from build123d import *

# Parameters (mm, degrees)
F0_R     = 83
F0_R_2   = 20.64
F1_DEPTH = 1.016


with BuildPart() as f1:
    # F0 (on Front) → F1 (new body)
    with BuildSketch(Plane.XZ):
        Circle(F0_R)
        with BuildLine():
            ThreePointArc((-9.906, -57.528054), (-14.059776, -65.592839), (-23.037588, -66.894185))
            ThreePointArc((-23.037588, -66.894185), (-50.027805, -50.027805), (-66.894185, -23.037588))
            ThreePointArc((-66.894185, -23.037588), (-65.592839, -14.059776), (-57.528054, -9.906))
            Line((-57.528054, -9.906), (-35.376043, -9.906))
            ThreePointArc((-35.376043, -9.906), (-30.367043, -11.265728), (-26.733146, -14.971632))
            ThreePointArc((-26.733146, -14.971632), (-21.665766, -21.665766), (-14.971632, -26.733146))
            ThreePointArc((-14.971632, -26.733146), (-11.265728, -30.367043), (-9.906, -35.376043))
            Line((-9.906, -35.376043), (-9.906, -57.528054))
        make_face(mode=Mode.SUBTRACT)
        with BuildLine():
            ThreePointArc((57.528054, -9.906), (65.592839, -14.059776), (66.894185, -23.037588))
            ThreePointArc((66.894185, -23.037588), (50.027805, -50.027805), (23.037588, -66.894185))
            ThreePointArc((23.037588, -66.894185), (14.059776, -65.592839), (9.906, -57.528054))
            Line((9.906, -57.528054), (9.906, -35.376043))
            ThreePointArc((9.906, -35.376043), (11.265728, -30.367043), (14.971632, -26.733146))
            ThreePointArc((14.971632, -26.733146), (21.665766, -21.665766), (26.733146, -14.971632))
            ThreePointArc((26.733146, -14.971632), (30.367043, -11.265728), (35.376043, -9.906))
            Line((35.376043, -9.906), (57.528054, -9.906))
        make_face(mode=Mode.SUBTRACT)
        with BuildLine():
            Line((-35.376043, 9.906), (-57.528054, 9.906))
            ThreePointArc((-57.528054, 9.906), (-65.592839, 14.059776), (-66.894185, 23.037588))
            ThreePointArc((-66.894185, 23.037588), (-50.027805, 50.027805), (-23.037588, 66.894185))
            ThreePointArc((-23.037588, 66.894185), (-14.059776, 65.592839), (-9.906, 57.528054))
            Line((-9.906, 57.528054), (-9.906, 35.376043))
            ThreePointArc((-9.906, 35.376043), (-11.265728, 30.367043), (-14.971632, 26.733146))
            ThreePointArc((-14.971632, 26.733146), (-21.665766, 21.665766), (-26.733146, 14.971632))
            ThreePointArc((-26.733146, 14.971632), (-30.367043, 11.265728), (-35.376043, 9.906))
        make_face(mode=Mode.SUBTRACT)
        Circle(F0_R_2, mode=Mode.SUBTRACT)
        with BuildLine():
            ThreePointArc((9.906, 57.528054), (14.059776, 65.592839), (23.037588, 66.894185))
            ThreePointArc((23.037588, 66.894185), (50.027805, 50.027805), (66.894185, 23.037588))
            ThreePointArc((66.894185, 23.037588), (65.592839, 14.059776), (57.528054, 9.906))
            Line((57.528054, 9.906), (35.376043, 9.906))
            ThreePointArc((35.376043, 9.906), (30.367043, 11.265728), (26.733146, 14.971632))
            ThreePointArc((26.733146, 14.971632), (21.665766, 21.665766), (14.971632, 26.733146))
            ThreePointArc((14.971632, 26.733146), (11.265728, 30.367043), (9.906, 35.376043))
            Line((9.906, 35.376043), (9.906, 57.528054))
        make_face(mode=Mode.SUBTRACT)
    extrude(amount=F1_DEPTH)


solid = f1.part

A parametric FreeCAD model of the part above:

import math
import FreeCAD as App
import Part
import Sketcher
Q = App.Units.Quantity

doc = App.newDocument("Part")
body = doc.addObject("PartDesign::Body", "Body")

# Sketch on XZ plane
sketch1 = doc.addObject("Sketcher::SketchObject", "Sketch")
body.addObject(sketch1)
sketch1.AttachmentSupport = (doc.XZ_Plane, [""])
sketch1.MapMode = "FlatFace"
sketch1.addGeometry([
    Part.Circle(App.Vector(0, 0, 0), App.Vector(0, 0, 1), 83),  # 0
    Part.LineSegment(App.Vector(-9.906, -35.376043, 0), App.Vector(-9.906, -57.528054, 0)),  # 1
    Part.ArcOfCircle(Part.Circle(App.Vector(-19.811999, -57.528054, 0), App.Vector(0, 0, 1), 9.905999), math.radians(-109.003124), math.radians(0.000003)),  # 2
    Part.ArcOfCircle(Part.Circle(App.Vector(-0.000005, -0.000005, 0), App.Vector(0, 0, 1), 70.749993), math.radians(-160.996884), math.radians(-109.003116)),  # 3
    Part.ArcOfCircle(Part.Circle(App.Vector(-57.528054, -19.811999, 0), App.Vector(0, 0, 1), 9.905999), math.radians(89.999997), math.radians(199.003124)),  # 4
    Part.LineSegment(App.Vector(-57.528054, -9.906, 0), App.Vector(-35.376043, -9.906, 0)),  # 5
    Part.ArcOfCircle(Part.Circle(App.Vector(-35.376041, -19.811996, 0), App.Vector(0, 0, 1), 9.905996), math.radians(29.250556), math.radians(90.000012)),  # 6
    Part.ArcOfCircle(Part.Circle(App.Vector(0.000008, 0.000008, 0), App.Vector(0, 0, 1), 30.640032), math.radians(-150.749422), math.radians(-119.250578)),  # 7
    Part.ArcOfCircle(Part.Circle(App.Vector(-19.811996, -35.376041, 0), App.Vector(0, 0, 1), 9.905996), math.radians(-0.000012), math.radians(60.749444)),  # 8
    Part.LineSegment(App.Vector(35.376043, -9.906, 0), App.Vector(57.528054, -9.906, 0)),  # 9
    Part.ArcOfCircle(Part.Circle(App.Vector(57.528054, -19.811999, 0), App.Vector(0, 0, 1), 9.905999), math.radians(-19.003124), math.radians(90.000003)),  # 10
    Part.ArcOfCircle(Part.Circle(App.Vector(0.000005, -0.000005, 0), App.Vector(0, 0, 1), 70.749993), math.radians(-70.996884), math.radians(-19.003116)),  # 11
    Part.ArcOfCircle(Part.Circle(App.Vector(19.811999, -57.528054, 0), App.Vector(0, 0, 1), 9.905999), math.radians(179.999997), math.radians(289.003124)),  # 12
    Part.LineSegment(App.Vector(9.906, -57.528054, 0), App.Vector(9.906, -35.376043, 0)),  # 13
    Part.ArcOfCircle(Part.Circle(App.Vector(19.811996, -35.376041, 0), App.Vector(0, 0, 1), 9.905996), math.radians(119.250556), math.radians(180.000012)),  # 14
    Part.ArcOfCircle(Part.Circle(App.Vector(-0.000008, 0.000008, 0), App.Vector(0, 0, 1), 30.640032), math.radians(-60.749422), math.radians(-29.250578)),  # 15
    Part.ArcOfCircle(Part.Circle(App.Vector(35.376041, -19.811996, 0), App.Vector(0, 0, 1), 9.905996), math.radians(89.999988), math.radians(150.749444)),  # 16
    Part.Circle(App.Vector(0, 0, 0), App.Vector(0, 0, 1), 20.64),  # 17
    Part.ArcOfCircle(Part.Circle(App.Vector(-35.376041, 19.811996, 0), App.Vector(0, 0, 1), 9.905996), math.radians(-90.000012), math.radians(-29.250556)),  # 18
    Part.LineSegment(App.Vector(-35.376043, 9.906, 0), App.Vector(-57.528054, 9.906, 0)),  # 19
    Part.ArcOfCircle(Part.Circle(App.Vector(-57.528054, 19.811999, 0), App.Vector(0, 0, 1), 9.905999), math.radians(160.996876), math.radians(270.000003)),  # 20
    Part.ArcOfCircle(Part.Circle(App.Vector(-0.000005, 0.000005, 0), App.Vector(0, 0, 1), 70.749993), math.radians(109.003116), math.radians(160.996884)),  # 21
    Part.ArcOfCircle(Part.Circle(App.Vector(-19.811999, 57.528054, 0), App.Vector(0, 0, 1), 9.905999), math.radians(-0.000003), math.radians(109.003124)),  # 22
    Part.LineSegment(App.Vector(-9.906, 57.528054, 0), App.Vector(-9.906, 35.376043, 0)),  # 23
    Part.ArcOfCircle(Part.Circle(App.Vector(-19.811996, 35.376041, 0), App.Vector(0, 0, 1), 9.905996), math.radians(-60.749444), math.radians(0.000012)),  # 24
    Part.ArcOfCircle(Part.Circle(App.Vector(0.000008, -0.000008, 0), App.Vector(0, 0, 1), 30.640032), math.radians(119.250578), math.radians(150.749422)),  # 25
    Part.LineSegment(App.Vector(9.906, 35.376043, 0), App.Vector(9.906, 57.528054, 0)),  # 26
    Part.ArcOfCircle(Part.Circle(App.Vector(19.811999, 57.528054, 0), App.Vector(0, 0, 1), 9.905999), math.radians(70.996876), math.radians(180.000003)),  # 27
    Part.ArcOfCircle(Part.Circle(App.Vector(0.000005, 0.000005, 0), App.Vector(0, 0, 1), 70.749993), math.radians(19.003116), math.radians(70.996884)),  # 28
    Part.ArcOfCircle(Part.Circle(App.Vector(57.528054, 19.811999, 0), App.Vector(0, 0, 1), 9.905999), math.radians(-90.000003), math.radians(19.003124)),  # 29
    Part.LineSegment(App.Vector(57.528054, 9.906, 0), App.Vector(35.376043, 9.906, 0)),  # 30
    Part.ArcOfCircle(Part.Circle(App.Vector(35.376041, 19.811996, 0), App.Vector(0, 0, 1), 9.905996), math.radians(-150.749444), math.radians(-89.999988)),  # 31
    Part.ArcOfCircle(Part.Circle(App.Vector(-0.000008, -0.000008, 0), App.Vector(0, 0, 1), 30.640032), math.radians(29.250578), math.radians(60.749422)),  # 32
    Part.ArcOfCircle(Part.Circle(App.Vector(19.811996, 35.376041, 0), App.Vector(0, 0, 1), 9.905996), math.radians(179.999988), math.radians(240.749444)),  # 33
], False)
sketch1.addConstraint([
    Sketcher.Constraint("Tangent", 1, 2, 2, 2),
    Sketcher.Constraint("Tangent", 2, 1, 3, 2),
    Sketcher.Constraint("Tangent", 3, 1, 4, 2),
    Sketcher.Constraint("Tangent", 4, 1, 5, 1),
    Sketcher.Constraint("Tangent", 5, 2, 6, 2),
    Sketcher.Constraint("Tangent", 6, 1, 7, 1),
    Sketcher.Constraint("Tangent", 7, 2, 8, 2),
    Sketcher.Constraint("Tangent", 8, 1, 1, 1),
    Sketcher.Constraint("Tangent", 9, 2, 10, 2),
    Sketcher.Constraint("Tangent", 10, 1, 11, 2),
    Sketcher.Constraint("Tangent", 11, 1, 12, 2),
    Sketcher.Constraint("Tangent", 12, 1, 13, 1),
    Sketcher.Constraint("Tangent", 13, 2, 14, 2),
    Sketcher.Constraint("Tangent", 14, 1, 15, 1),
    Sketcher.Constraint("Tangent", 15, 2, 16, 2),
    Sketcher.Constraint("Tangent", 16, 1, 9, 1),
    Sketcher.Constraint("Tangent", 18, 1, 19, 1),
    Sketcher.Constraint("Tangent", 19, 2, 20, 2),
    Sketcher.Constraint("Tangent", 20, 1, 21, 2),
    Sketcher.Constraint("Tangent", 21, 1, 22, 2),
    Sketcher.Constraint("Tangent", 22, 1, 23, 1),
    Sketcher.Constraint("Tangent", 23, 2, 24, 2),
    Sketcher.Constraint("Tangent", 24, 1, 25, 1),
    Sketcher.Constraint("Tangent", 25, 2, 18, 2),
    Sketcher.Constraint("Tangent", 26, 2, 27, 2),
    Sketcher.Constraint("Tangent", 27, 1, 28, 2),
    Sketcher.Constraint("Tangent", 28, 1, 29, 2),
    Sketcher.Constraint("Tangent", 29, 1, 30, 1),
    Sketcher.Constraint("Tangent", 30, 2, 31, 2),
    Sketcher.Constraint("Tangent", 31, 1, 32, 1),
    Sketcher.Constraint("Tangent", 32, 2, 33, 2),
    Sketcher.Constraint("Tangent", 33, 1, 26, 1),
    Sketcher.Constraint("Vertical", 1),
    Sketcher.Constraint("Horizontal", 5),
    Sketcher.Constraint("Horizontal", 9),
    Sketcher.Constraint("Vertical", 13),
    Sketcher.Constraint("Horizontal", 19),
    Sketcher.Constraint("Vertical", 23),
    Sketcher.Constraint("Vertical", 26),
    Sketcher.Constraint("Horizontal", 30),
    Sketcher.Constraint("Coincident", 0, 3, -1, 1),
    Sketcher.Constraint("Coincident", 3, 3, -1, 1),
    Sketcher.Constraint("Coincident", 11, 3, -1, 1),
    Sketcher.Constraint("Coincident", 17, 3, -1, 1),
    Sketcher.Constraint("Coincident", 21, 3, -1, 1),
    Sketcher.Constraint("Coincident", 28, 3, -1, 1),
    Sketcher.Constraint("Coincident", 25, 3, 11, 3),
    Sketcher.Constraint("Coincident", 32, 3, 3, 3),
    Sketcher.Constraint("Equal", 2, 4),
    Sketcher.Constraint("Equal", 6, 8),
    Sketcher.Constraint("Equal", 4, 10),
    Sketcher.Constraint("Equal", 3, 11),
    Sketcher.Constraint("Equal", 10, 12),
    Sketcher.Constraint("Equal", 8, 14),
    Sketcher.Constraint("Equal", 7, 15),
    Sketcher.Constraint("Equal", 14, 16),
    Sketcher.Constraint("Equal", 16, 18),
    Sketcher.Constraint("Equal", 12, 20),
    Sketcher.Constraint("Equal", 11, 21),
    Sketcher.Constraint("Equal", 20, 22),
    Sketcher.Constraint("Equal", 18, 24),
    Sketcher.Constraint("Equal", 15, 25),
    Sketcher.Constraint("Equal", 22, 27),
    Sketcher.Constraint("Equal", 21, 28),
    Sketcher.Constraint("Equal", 27, 29),
    Sketcher.Constraint("Equal", 24, 31),
    Sketcher.Constraint("Equal", 25, 32),
    Sketcher.Constraint("Equal", 31, 33),
    Sketcher.Constraint("Symmetric", 3, 3, 7, 3, -1, 1),
    Sketcher.Constraint("Symmetric", 11, 3, 15, 3, -1, 1),
    Sketcher.Constraint("Horizontal", 4, 3, 10, 3),
    Sketcher.Constraint("Horizontal", 2, 3, 12, 3),
    Sketcher.Constraint("Horizontal", 22, 3, 27, 3),
    Sketcher.Constraint("Horizontal", 20, 3, 29, 3),
    Sketcher.Constraint("Vertical", 6, 3, 18, 3),
    Sketcher.Constraint("Vertical", 2, 3, 22, 3),
    Sketcher.Constraint("Equal", 30, 1),
    Sketcher.Constraint("Radius", 2, Q("0.39 in")),
    Sketcher.Constraint("Radius", 6, Q("0.3899998 in")),
    Sketcher.Constraint("Diameter", 0, 166.0),
    Sketcher.Constraint("Diameter", 17, 41.28),
    Sketcher.Constraint("DistanceX", 2, 3, -1, 1, Q("0.78 in")),
    Sketcher.Constraint("Radius", 7, 30.640032),
    Sketcher.Constraint("Radius", 3, 70.749993),
])
pad1 = doc.addObject("PartDesign::Pad", "Pad")
body.addObject(pad1)
pad1.Profile = sketch1
pad1.Length = Q("0.04 in")

doc.recompute()
